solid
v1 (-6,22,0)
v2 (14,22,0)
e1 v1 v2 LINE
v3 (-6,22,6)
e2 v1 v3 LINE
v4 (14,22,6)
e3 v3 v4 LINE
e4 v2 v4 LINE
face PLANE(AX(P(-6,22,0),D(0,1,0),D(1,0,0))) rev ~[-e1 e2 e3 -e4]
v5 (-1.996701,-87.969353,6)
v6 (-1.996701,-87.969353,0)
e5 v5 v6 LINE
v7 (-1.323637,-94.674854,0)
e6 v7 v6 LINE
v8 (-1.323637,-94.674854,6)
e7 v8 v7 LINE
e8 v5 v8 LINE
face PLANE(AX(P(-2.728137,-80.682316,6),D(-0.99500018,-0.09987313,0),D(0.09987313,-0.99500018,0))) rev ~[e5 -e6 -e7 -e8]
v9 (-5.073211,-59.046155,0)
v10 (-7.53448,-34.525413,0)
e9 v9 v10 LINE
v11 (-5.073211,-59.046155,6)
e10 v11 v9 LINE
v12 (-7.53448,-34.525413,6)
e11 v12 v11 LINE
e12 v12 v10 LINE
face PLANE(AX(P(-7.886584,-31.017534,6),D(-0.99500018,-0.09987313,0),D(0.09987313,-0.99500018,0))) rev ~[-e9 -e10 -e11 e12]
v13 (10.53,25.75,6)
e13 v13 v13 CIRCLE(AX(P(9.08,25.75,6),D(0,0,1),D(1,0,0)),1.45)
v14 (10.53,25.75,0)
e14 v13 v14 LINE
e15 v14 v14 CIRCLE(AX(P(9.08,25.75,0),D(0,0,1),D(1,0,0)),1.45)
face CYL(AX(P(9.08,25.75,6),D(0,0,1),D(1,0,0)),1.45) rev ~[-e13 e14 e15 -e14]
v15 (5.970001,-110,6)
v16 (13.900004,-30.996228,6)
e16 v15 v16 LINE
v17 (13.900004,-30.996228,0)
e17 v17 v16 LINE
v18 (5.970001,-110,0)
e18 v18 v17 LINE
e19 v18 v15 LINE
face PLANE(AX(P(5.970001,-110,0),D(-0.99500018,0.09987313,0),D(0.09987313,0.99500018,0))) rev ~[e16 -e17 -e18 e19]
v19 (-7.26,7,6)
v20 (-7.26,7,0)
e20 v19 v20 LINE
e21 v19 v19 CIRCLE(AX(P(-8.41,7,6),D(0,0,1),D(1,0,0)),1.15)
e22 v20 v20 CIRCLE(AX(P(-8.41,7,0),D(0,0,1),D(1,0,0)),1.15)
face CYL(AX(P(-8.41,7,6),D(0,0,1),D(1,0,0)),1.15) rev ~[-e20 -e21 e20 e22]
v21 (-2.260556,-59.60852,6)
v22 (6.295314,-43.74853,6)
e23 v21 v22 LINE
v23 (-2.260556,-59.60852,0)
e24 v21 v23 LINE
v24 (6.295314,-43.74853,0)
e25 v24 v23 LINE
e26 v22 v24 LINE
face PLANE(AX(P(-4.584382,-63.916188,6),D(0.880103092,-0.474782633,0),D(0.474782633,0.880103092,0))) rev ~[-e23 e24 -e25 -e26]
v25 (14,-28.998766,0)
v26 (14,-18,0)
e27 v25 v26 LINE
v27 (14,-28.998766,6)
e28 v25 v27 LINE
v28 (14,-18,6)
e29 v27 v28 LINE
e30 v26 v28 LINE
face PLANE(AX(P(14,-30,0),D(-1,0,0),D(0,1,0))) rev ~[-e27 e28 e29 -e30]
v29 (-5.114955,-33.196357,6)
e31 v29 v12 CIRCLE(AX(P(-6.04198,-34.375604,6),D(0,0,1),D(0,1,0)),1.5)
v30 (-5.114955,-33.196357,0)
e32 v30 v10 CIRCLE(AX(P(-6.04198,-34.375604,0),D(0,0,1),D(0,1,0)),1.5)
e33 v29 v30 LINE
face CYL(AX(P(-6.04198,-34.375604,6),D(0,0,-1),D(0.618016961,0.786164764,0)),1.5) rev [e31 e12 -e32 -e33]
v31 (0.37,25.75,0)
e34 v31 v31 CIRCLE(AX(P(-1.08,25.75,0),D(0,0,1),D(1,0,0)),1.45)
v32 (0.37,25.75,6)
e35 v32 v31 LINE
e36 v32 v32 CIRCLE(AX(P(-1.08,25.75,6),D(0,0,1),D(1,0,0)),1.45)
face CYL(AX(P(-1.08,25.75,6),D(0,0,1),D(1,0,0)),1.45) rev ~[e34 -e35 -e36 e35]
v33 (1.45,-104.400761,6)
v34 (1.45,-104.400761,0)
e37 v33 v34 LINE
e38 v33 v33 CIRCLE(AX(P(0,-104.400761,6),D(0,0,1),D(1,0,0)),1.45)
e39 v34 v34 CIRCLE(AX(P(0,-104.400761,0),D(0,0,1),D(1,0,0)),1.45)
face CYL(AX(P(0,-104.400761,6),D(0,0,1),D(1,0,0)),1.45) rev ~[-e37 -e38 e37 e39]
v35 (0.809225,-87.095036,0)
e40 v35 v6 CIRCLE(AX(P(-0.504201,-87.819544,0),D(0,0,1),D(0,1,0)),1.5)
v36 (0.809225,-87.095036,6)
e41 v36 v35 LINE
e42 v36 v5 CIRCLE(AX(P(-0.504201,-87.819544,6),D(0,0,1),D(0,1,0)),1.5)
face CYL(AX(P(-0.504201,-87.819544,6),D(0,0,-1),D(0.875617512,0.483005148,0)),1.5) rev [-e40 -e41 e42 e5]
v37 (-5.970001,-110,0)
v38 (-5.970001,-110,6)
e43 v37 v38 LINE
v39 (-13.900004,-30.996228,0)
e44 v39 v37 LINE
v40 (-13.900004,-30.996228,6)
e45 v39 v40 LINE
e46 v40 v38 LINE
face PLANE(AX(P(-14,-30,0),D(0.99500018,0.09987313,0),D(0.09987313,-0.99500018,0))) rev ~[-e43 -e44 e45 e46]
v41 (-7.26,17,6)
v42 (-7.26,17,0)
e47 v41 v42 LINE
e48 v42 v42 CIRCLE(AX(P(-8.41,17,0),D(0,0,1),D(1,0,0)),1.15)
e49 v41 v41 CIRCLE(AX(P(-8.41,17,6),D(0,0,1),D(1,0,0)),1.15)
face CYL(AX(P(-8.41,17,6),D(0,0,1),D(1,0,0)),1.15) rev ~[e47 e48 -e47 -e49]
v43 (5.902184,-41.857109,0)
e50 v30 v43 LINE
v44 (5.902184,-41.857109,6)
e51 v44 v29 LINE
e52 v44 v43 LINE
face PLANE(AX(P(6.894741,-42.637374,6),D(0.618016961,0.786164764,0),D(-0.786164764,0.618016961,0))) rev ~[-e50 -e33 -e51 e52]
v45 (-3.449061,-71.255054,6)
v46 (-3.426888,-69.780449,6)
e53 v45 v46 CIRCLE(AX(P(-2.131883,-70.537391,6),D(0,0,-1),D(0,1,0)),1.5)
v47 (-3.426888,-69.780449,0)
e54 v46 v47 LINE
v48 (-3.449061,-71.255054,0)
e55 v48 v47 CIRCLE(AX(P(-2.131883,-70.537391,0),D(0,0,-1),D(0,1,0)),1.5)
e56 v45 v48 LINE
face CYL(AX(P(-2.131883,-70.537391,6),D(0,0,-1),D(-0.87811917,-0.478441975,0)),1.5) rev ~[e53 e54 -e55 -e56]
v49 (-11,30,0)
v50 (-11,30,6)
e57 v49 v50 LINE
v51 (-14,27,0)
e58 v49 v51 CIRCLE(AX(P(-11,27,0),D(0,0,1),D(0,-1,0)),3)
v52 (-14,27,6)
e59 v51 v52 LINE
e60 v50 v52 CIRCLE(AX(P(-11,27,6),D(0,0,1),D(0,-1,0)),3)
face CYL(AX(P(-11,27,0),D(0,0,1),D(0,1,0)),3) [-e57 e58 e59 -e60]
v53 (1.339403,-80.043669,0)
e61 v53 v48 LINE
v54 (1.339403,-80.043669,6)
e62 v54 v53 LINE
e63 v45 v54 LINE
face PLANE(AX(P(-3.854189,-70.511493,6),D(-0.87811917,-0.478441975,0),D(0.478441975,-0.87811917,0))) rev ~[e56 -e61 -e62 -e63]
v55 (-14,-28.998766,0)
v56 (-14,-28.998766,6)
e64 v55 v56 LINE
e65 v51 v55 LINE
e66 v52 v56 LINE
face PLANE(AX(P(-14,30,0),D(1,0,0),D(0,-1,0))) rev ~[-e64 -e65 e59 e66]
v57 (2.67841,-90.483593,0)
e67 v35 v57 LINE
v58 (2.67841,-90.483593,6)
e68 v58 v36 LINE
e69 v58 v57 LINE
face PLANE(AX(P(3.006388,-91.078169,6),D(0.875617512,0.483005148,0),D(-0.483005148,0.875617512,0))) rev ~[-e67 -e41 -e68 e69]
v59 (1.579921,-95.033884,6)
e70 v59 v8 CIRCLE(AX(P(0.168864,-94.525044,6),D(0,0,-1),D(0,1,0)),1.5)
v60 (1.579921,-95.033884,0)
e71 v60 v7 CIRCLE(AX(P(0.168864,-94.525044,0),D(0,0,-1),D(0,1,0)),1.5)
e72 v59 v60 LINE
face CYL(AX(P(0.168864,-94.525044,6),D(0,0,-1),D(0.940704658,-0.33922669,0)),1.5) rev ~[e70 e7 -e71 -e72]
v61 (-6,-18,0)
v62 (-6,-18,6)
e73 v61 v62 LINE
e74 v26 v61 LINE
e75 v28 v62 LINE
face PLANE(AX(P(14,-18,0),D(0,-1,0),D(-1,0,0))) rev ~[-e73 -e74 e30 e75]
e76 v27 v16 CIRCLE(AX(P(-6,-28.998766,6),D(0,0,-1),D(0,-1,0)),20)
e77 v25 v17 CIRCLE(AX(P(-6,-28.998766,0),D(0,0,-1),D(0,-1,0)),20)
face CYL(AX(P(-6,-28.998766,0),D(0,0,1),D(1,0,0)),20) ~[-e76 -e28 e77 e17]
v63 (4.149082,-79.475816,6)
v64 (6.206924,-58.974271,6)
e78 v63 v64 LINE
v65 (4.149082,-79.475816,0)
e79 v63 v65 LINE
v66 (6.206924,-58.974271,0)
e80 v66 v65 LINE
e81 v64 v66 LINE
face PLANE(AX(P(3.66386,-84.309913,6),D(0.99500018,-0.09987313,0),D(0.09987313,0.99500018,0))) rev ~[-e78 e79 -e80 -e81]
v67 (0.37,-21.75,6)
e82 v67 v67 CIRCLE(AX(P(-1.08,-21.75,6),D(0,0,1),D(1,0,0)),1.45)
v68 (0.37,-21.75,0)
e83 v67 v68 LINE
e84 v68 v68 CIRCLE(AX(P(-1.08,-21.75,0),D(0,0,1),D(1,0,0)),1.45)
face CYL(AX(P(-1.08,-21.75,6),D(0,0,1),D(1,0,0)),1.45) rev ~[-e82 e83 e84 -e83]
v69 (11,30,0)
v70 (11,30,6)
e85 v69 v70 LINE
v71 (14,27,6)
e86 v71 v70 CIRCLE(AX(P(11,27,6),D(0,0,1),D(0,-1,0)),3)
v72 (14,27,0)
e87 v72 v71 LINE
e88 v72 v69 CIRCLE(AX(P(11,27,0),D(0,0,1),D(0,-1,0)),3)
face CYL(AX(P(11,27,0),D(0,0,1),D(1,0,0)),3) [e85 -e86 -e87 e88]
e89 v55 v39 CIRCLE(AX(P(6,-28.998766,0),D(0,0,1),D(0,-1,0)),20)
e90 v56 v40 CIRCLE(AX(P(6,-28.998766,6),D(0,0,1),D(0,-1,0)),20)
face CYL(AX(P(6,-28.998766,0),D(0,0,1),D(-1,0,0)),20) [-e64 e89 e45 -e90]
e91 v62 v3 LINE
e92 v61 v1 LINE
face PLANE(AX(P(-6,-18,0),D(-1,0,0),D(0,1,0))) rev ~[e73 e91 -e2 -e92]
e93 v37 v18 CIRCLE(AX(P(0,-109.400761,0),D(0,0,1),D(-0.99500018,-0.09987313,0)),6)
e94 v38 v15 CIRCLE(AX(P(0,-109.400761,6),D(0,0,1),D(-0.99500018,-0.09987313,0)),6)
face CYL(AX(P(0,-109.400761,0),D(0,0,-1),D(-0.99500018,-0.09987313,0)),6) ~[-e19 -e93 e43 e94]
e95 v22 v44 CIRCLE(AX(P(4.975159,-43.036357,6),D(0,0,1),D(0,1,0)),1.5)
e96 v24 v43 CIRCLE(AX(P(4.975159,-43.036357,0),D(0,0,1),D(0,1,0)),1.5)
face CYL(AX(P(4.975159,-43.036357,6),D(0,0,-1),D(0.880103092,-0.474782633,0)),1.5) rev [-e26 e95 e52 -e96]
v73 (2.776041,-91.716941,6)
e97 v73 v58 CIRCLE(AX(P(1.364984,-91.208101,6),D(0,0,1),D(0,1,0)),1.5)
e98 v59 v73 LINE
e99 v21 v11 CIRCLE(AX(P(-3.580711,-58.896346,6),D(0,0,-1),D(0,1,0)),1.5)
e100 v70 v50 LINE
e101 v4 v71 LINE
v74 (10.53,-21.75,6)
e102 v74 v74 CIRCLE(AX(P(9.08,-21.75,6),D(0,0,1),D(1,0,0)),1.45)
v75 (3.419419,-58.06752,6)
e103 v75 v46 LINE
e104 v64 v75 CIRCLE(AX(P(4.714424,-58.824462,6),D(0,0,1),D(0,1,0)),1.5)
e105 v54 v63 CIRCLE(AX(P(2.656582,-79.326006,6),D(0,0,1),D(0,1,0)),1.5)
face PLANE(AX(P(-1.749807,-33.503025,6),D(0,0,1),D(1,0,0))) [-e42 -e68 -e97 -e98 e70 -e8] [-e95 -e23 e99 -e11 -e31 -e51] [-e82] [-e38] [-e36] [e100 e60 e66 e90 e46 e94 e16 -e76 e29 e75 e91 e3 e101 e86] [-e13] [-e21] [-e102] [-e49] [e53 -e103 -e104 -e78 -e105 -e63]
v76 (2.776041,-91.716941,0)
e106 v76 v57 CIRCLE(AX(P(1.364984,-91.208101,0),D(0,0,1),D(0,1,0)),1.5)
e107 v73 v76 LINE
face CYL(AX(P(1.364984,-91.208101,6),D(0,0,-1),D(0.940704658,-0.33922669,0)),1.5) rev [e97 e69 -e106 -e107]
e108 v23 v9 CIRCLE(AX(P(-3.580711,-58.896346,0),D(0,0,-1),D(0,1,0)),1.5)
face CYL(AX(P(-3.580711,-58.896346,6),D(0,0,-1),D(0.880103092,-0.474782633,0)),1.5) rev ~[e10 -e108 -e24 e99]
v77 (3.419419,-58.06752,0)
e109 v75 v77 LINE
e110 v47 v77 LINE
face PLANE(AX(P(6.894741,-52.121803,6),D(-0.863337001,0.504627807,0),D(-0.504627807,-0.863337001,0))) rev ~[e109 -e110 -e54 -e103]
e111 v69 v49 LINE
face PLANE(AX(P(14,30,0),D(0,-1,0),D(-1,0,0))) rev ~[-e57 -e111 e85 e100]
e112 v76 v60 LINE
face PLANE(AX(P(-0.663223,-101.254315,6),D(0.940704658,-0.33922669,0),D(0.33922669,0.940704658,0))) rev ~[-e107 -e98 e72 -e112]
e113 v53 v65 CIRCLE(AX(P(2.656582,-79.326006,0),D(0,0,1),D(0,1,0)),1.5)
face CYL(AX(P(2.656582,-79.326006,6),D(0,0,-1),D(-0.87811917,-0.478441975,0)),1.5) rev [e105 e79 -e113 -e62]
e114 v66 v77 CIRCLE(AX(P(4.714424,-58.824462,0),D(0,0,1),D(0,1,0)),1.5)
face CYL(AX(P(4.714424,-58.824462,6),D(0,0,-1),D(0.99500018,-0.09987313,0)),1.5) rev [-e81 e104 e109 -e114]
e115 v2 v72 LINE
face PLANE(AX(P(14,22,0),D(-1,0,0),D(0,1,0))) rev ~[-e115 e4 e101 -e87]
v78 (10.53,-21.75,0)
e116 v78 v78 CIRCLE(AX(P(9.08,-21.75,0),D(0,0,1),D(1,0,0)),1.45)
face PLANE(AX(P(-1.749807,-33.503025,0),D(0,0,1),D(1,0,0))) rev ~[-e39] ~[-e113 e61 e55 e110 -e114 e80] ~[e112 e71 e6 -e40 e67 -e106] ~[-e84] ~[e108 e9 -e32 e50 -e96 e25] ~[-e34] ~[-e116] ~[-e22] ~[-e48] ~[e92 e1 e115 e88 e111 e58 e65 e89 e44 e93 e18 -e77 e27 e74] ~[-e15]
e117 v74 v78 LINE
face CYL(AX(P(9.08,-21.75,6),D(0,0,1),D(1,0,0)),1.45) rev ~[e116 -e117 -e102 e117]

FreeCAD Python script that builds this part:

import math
import FreeCAD as App
import Part
import Sketcher

V = App.Vector


def edges_at(feature, points):
    """Names of the edges that pass closest to the given points."""
    edges = feature.Shape.Edges
    near = lambda p: min(range(len(edges)), key=lambda i: edges[i].distToShape(Part.Vertex(*p))[0])
    return sorted({f"Edge{near(p) + 1}" for p in points})

doc = App.newDocument("Part")
body = doc.addObject("PartDesign::Body", "Body")

# Sketch on XY plane
sketch1 = body.newObject("Sketcher::SketchObject", "Sketch")
sketch1.AttachmentSupport = (doc.getObject("XY_Plane"), [""])
sketch1.MapMode = "FlatFace"
sketch1.addGeometry([
    Part.LineSegment(V(-14, -30, 0), V(-5.970001, -110, 0)),  # 0
    Part.ArcOfCircle(Part.Circle(V(0, -109.400761, 0), V(0, 0, 1), 6), math.radians(-174.268135), math.radians(-5.731865)),  # 1
    Part.LineSegment(V(5.970001, -110, 0), V(14, -30, 0)),  # 2
    Part.LineSegment(V(14, -30, 0), V(14, -18, 0)),  # 3
    Part.LineSegment(V(14, -18, 0), V(-6, -18, 0)),  # 4
    Part.LineSegment(V(-6, -18, 0), V(-6, 22, 0)),  # 5
    Part.LineSegment(V(-6, 22, 0), V(14, 22, 0)),  # 6
    Part.LineSegment(V(14, 22, 0), V(14, 30, 0)),  # 7
    Part.LineSegment(V(14, 30, 0), V(-14, 30, 0)),  # 8
    Part.LineSegment(V(-14, 30, 0), V(-14, -30, 0)),  # 9
], False)
sketch1.addConstraint([
    Sketcher.Constraint("Tangent", 0, 2, 1, 1),
    Sketcher.Constraint("Tangent", 1, 2, 2, 1),
    Sketcher.Constraint("Coincident", 2, 2, 3, 1),
    Sketcher.Constraint("Coincident", 3, 2, 4, 1),
    Sketcher.Constraint("Coincident", 4, 2, 5, 1),
    Sketcher.Constraint("Coincident", 5, 2, 6, 1),
    Sketcher.Constraint("Coincident", 6, 2, 7, 1),
    Sketcher.Constraint("Coincident", 7, 2, 8, 1),
    Sketcher.Constraint("Coincident", 8, 2, 9, 1),
    Sketcher.Constraint("Coincident", 9, 2, 0, 1),
    Sketcher.Constraint("Vertical", 3),
    Sketcher.Constraint("Horizontal", 4),
    Sketcher.Constraint("Vertical", 5),
    Sketcher.Constraint("Horizontal", 6),
    Sketcher.Constraint("Vertical", 7),
    Sketcher.Constraint("Horizontal", 8),
    Sketcher.Constraint("Vertical", 9),
    Sketcher.Constraint("Symmetric", 2, 2, 8, 2, -1, 1),
    Sketcher.Constraint("Symmetric", 7, 2, 9, 2, -1, 1),
    Sketcher.Constraint("PointOnObject", 1, 3, -2),
    Sketcher.Constraint("Radius", 1, 6.0),
    Sketcher.Constraint("DistanceX", 4, 2, 4, 1, 20.0),
    Sketcher.Constraint("DistanceX", 8, 2, 8, 1, 28.0),
    Sketcher.Constraint("DistanceY", 3, 1, 3, 2, 12.0),
    Sketcher.Constraint("DistanceY", 5, 1, 5, 2, 40.0),
    Sketcher.Constraint("DistanceY", 7, 1, 7, 2, 8.0),
    Sketcher.Constraint("DistanceY", 0, 2, -1, 1, 110.0),
])
pad1 = body.newObject("PartDesign::Pad", "Pad")
pad1.Profile = sketch1
pad1.Length = 6
doc.recompute()

fillet = body.newObject("PartDesign::Fillet", "Fillet")
fillet.Base = (pad1, edges_at(pad1, [(-14, 30, 3), (14, 30, 3)]))
fillet.Radius = 3
doc.recompute()

fillet2 = body.newObject("PartDesign::Fillet", "Fillet001")
fillet2.Base = (fillet, edges_at(fillet, [(14, -30, 3), (-14, -30, 3)]))
fillet2.Radius = 20

# Sketch on XY plane
sketch2 = body.newObject("Sketcher::SketchObject", "Sketch001")
sketch2.AttachmentSupport = (doc.getObject("XY_Plane"), [""])
sketch2.MapMode = "FlatFace"
sketch2.AttachmentOffset = App.Placement(V(0, 0, 6), App.Rotation())
sketch2.addGeometry(Part.Circle(V(9.08, -21.75, 0), V(0, 0, 1), 1.45), False)
sketch2.addConstraint([
    Sketcher.Constraint("Diameter", 0, 2.9),
    Sketcher.Constraint("DistanceX", -1, 1, 0, 3, 9.08),
    Sketcher.Constraint("DistanceY", 0, 3, -1, 1, 21.75),
])
pocket1 = body.newObject("PartDesign::Pocket", "Pocket")
pocket1.Profile = sketch2
pocket1.Type = "UpToFirst"

# Sketch on XY plane
sketch3 = body.newObject("Sketcher::SketchObject", "Sketch002")
sketch3.AttachmentSupport = (doc.getObject("XY_Plane"), [""])
sketch3.MapMode = "FlatFace"
sketch3.AttachmentOffset = App.Placement(V(0, 0, 6), App.Rotation())
sketch3.addGeometry(Part.Circle(V(-1.08, -21.75, 0), V(0, 0, 1), 1.45), False)
sketch3.addConstraint([
    Sketcher.Constraint("Diameter", 0, 2.9),
    Sketcher.Constraint("DistanceX", 0, 3, -1, 1, 1.08),
    Sketcher.Constraint("DistanceY", 0, 3, -1, 1, 21.75),
])
pocket2 = body.newObject("PartDesign::Pocket", "Pocket001")
pocket2.Profile = sketch3
pocket2.Type = "UpToFirst"

# Sketch on XY plane
sketch4 = body.newObject("Sketcher::SketchObject", "Sketch003")
sketch4.AttachmentSupport = (doc.getObject("XY_Plane"), [""])
sketch4.MapMode = "FlatFace"
sketch4.AttachmentOffset = App.Placement(V(0, 0, 6), App.Rotation())
sketch4.addGeometry(Part.Circle(V(-1.08, 25.75, 0), V(0, 0, 1), 1.45), False)
sketch4.addConstraint([
    Sketcher.Constraint("Diameter", 0, 2.9),
    Sketcher.Constraint("DistanceX", 0, 3, -1, 1, 1.08),
    Sketcher.Constraint("DistanceY", -1, 1, 0, 3, 25.75),
])
pocket3 = body.newObject("PartDesign::Pocket", "Pocket002")
pocket3.Profile = sketch4
pocket3.Type = "UpToFirst"

# Sketch on XY plane
sketch5 = body.newObject("Sketcher::SketchObject", "Sketch004")
sketch5.AttachmentSupport = (doc.getObject("XY_Plane"), [""])
sketch5.MapMode = "FlatFace"
sketch5.AttachmentOffset = App.Placement(V(0, 0, 6), App.Rotation())
sketch5.addGeometry(Part.Circle(V(9.08, 25.75, 0), V(0, 0, 1), 1.45), False)
sketch5.addConstraint([
    Sketcher.Constraint("Diameter", 0, 2.9),
    Sketcher.Constraint("DistanceX", -1, 1, 0, 3, 9.08),
    Sketcher.Constraint("DistanceY", -1, 1, 0, 3, 25.75),
])
pocket4 = body.newObject("PartDesign::Pocket", "Pocket003")
pocket4.Profile = sketch5
pocket4.Type = "UpToFirst"

# Sketch on XY plane
sketch6 = body.newObject("Sketcher::SketchObject", "Sketch005")
sketch6.AttachmentSupport = (doc.getObject("XY_Plane"), [""])
sketch6.MapMode = "FlatFace"
sketch6.AttachmentOffset = App.Placement(V(0, 0, 6), App.Rotation())
sketch6.addGeometry([
    Part.LineSegment(V(-7.886584, -31.017534, 0), V(-4.584382, -63.916188, 0)),
    Part.LineSegment(V(-4.584382, -63.916188, 0), V(6.894741, -42.637374, 0)),
    Part.LineSegment(V(6.894741, -42.637374, 0), V(-7.886584, -31.017534, 0)),
], False)
sketch6.addConstraint([
    Sketcher.Constraint("Coincident", 0, 2, 1, 1),
    Sketcher.Constraint("Coincident", 1, 2, 2, 1),
    Sketcher.Constraint("Coincident", 2, 2, 0, 1),
    Sketcher.Constraint("DistanceX", 2, 2, 0, 2, 3.302202),
    Sketcher.Constraint("Distance", 0, 33.063968),
    Sketcher.Constraint("DistanceX", 0, 2, -1, 1, 4.584382),
    Sketcher.Constraint("DistanceX", -1, 1, 1, 2, 6.894741),
    Sketcher.Constraint("DistanceY", 1, 2, 2, 2, 11.619841),
    Sketcher.Constraint("DistanceY", 0, 2, -1, 1, 63.916188),
])
pocket5 = body.newObject("PartDesign::Pocket", "Pocket004")
pocket5.Profile = sketch6
pocket5.Type = "UpToFirst"

# Sketch on XY plane
sketch7 = body.newObject("Sketcher::SketchObject", "Sketch006")
sketch7.AttachmentSupport = (doc.getObject("XY_Plane"), [""])
sketch7.MapMode = "FlatFace"
sketch7.AttachmentOffset = App.Placement(V(0, 0, 6), App.Rotation())
sketch7.addGeometry([
    Part.LineSegment(V(6.894741, -52.121803, 0), V(-3.854189, -70.511493, 0)),
    Part.LineSegment(V(-3.854189, -70.511493, 0), V(3.66386, -84.309913, 0)),
    Part.LineSegment(V(3.66386, -84.309913, 0), V(6.894741, -52.121803, 0)),
], False)
sketch7.addConstraint([
    Sketcher.Constraint("Coincident", 0, 2, 1, 1),
    Sketcher.Constraint("Coincident", 1, 2, 2, 1),
    Sketcher.Constraint("Coincident", 2, 2, 0, 1),
    Sketcher.Constraint("Distance", 0, 21.300709),
    Sketcher.Constraint("DistanceX", 0, 2, -1, 1, 3.854189),
    Sketcher.Constraint("DistanceX", -1, 1, 1, 2, 3.66386),
    Sketcher.Constraint("DistanceX", -1, 1, 2, 2, 6.894741),
    Sketcher.Constraint("DistanceY", 1, 2, 0, 2, 13.798419),
    Sketcher.Constraint("DistanceY", 0, 2, -1, 1, 70.511493),
])
pocket6 = body.newObject("PartDesign::Pocket", "Pocket005")
pocket6.Profile = sketch7
pocket6.Type = "UpToFirst"

# Sketch on XY plane
sketch8 = body.newObject("Sketcher::SketchObject", "Sketch007")
sketch8.AttachmentSupport = (doc.getObject("XY_Plane"), [""])
sketch8.MapMode = "FlatFace"
sketch8.AttachmentOffset = App.Placement(V(0, 0, 6), App.Rotation())
sketch8.addGeometry([
    Part.LineSegment(V(-2.728137, -80.682316, 0), V(-0.663223, -101.254315, 0)),
    Part.LineSegment(V(-0.663223, -101.254315, 0), V(3.006388, -91.078169, 0)),
    Part.LineSegment(V(3.006388, -91.078169, 0), V(-2.728137, -80.682316, 0)),
], False)
sketch8.addConstraint([
    Sketcher.Constraint("Coincident", 0, 2, 1, 1),
    Sketcher.Constraint("Coincident", 1, 2, 2, 1),
    Sketcher.Constraint("Coincident", 2, 2, 0, 1),
    Sketcher.Constraint("DistanceY", 0, 2, 2, 2, 20.571999),
    Sketcher.Constraint("DistanceY", 1, 2, -1, 1, 91.078169),
    Sketcher.Constraint("DistanceX", 0, 2, 1, 2, 3.669611),
    Sketcher.Constraint("Distance", 0, 20.675372),
    Sketcher.Constraint("Distance", 1, 10.817578),
    Sketcher.Constraint("DistanceX", 0, 2, -1, 1, 0.663223),
])
pocket7 = body.newObject("PartDesign::Pocket", "Pocket006")
pocket7.Profile = sketch8
pocket7.Type = "UpToFirst"
doc.recompute()

fillet3 = body.newObject("PartDesign::Fillet", "Fillet002")
fillet3.Base = (pocket7, edges_at(pocket7, [
    (6.895, -52.122, 3),
    (3.664, -84.31, 3),
    (-3.854, -70.511, 3),
    (-2.728, -80.682, 3),
    (3.006, -91.078, 3),
    (-0.663, -101.254, 3),
    (-7.887, -31.018, 3),
    (6.895, -42.637, 3),
    (-4.584, -63.916, 3),
]))
fillet3.Radius = 1.5

# Sketch on XY plane
sketch9 = body.newObject("Sketcher::SketchObject", "Sketch008")
sketch9.AttachmentSupport = (doc.getObject("XY_Plane"), [""])
sketch9.MapMode = "FlatFace"
sketch9.AttachmentOffset = App.Placement(V(0, 0, 6), App.Rotation())
sketch9.addGeometry(Part.Circle(V(0, -104.400761, 0), V(0, 0, 1), 1.45), False)
sketch9.addConstraint([
    Sketcher.Constraint("PointOnObject", 0, 3, -2),
    Sketcher.Constraint("Diameter", 0, 2.9),
    Sketcher.Constraint("DistanceY", 0, 3, -1, 1, 104.400761),
])
pocket8 = body.newObject("PartDesign::Pocket", "Pocket007")
pocket8.Profile = sketch9
pocket8.Length = 6

# Sketch on XY plane
sketch10 = body.newObject("Sketcher::SketchObject", "Sketch009")
sketch10.AttachmentSupport = (doc.getObject("XY_Plane"), [""])
sketch10.MapMode = "FlatFace"
sketch10.AttachmentOffset = App.Placement(V(0, 0, 6), App.Rotation())
sketch10.addGeometry([
    Part.Circle(V(-8.41, 17, 0), V(0, 0, 1), 1.15),
    Part.Circle(V(-8.41, 7, 0), V(0, 0, 1), 1.15),
], False)
sketch10.addConstraint([
    Sketcher.Constraint("Equal", 0, 1),
    Sketcher.Constraint("Vertical", 0, 3, 1, 3),
    Sketcher.Constraint("Diameter", 0, 2.3),
    Sketcher.Constraint("DistanceY", -1, 1, 0, 3, 17.0),
    Sketcher.Constraint("DistanceY", -1, 1, 1, 3, 7.0),
    Sketcher.Constraint("DistanceX", 0, 3, -1, 1, 8.41),
])
pocket9 = body.newObject("PartDesign::Pocket", "Pocket008")
pocket9.Profile = sketch10
pocket9.Length = 6

doc.recompute()
